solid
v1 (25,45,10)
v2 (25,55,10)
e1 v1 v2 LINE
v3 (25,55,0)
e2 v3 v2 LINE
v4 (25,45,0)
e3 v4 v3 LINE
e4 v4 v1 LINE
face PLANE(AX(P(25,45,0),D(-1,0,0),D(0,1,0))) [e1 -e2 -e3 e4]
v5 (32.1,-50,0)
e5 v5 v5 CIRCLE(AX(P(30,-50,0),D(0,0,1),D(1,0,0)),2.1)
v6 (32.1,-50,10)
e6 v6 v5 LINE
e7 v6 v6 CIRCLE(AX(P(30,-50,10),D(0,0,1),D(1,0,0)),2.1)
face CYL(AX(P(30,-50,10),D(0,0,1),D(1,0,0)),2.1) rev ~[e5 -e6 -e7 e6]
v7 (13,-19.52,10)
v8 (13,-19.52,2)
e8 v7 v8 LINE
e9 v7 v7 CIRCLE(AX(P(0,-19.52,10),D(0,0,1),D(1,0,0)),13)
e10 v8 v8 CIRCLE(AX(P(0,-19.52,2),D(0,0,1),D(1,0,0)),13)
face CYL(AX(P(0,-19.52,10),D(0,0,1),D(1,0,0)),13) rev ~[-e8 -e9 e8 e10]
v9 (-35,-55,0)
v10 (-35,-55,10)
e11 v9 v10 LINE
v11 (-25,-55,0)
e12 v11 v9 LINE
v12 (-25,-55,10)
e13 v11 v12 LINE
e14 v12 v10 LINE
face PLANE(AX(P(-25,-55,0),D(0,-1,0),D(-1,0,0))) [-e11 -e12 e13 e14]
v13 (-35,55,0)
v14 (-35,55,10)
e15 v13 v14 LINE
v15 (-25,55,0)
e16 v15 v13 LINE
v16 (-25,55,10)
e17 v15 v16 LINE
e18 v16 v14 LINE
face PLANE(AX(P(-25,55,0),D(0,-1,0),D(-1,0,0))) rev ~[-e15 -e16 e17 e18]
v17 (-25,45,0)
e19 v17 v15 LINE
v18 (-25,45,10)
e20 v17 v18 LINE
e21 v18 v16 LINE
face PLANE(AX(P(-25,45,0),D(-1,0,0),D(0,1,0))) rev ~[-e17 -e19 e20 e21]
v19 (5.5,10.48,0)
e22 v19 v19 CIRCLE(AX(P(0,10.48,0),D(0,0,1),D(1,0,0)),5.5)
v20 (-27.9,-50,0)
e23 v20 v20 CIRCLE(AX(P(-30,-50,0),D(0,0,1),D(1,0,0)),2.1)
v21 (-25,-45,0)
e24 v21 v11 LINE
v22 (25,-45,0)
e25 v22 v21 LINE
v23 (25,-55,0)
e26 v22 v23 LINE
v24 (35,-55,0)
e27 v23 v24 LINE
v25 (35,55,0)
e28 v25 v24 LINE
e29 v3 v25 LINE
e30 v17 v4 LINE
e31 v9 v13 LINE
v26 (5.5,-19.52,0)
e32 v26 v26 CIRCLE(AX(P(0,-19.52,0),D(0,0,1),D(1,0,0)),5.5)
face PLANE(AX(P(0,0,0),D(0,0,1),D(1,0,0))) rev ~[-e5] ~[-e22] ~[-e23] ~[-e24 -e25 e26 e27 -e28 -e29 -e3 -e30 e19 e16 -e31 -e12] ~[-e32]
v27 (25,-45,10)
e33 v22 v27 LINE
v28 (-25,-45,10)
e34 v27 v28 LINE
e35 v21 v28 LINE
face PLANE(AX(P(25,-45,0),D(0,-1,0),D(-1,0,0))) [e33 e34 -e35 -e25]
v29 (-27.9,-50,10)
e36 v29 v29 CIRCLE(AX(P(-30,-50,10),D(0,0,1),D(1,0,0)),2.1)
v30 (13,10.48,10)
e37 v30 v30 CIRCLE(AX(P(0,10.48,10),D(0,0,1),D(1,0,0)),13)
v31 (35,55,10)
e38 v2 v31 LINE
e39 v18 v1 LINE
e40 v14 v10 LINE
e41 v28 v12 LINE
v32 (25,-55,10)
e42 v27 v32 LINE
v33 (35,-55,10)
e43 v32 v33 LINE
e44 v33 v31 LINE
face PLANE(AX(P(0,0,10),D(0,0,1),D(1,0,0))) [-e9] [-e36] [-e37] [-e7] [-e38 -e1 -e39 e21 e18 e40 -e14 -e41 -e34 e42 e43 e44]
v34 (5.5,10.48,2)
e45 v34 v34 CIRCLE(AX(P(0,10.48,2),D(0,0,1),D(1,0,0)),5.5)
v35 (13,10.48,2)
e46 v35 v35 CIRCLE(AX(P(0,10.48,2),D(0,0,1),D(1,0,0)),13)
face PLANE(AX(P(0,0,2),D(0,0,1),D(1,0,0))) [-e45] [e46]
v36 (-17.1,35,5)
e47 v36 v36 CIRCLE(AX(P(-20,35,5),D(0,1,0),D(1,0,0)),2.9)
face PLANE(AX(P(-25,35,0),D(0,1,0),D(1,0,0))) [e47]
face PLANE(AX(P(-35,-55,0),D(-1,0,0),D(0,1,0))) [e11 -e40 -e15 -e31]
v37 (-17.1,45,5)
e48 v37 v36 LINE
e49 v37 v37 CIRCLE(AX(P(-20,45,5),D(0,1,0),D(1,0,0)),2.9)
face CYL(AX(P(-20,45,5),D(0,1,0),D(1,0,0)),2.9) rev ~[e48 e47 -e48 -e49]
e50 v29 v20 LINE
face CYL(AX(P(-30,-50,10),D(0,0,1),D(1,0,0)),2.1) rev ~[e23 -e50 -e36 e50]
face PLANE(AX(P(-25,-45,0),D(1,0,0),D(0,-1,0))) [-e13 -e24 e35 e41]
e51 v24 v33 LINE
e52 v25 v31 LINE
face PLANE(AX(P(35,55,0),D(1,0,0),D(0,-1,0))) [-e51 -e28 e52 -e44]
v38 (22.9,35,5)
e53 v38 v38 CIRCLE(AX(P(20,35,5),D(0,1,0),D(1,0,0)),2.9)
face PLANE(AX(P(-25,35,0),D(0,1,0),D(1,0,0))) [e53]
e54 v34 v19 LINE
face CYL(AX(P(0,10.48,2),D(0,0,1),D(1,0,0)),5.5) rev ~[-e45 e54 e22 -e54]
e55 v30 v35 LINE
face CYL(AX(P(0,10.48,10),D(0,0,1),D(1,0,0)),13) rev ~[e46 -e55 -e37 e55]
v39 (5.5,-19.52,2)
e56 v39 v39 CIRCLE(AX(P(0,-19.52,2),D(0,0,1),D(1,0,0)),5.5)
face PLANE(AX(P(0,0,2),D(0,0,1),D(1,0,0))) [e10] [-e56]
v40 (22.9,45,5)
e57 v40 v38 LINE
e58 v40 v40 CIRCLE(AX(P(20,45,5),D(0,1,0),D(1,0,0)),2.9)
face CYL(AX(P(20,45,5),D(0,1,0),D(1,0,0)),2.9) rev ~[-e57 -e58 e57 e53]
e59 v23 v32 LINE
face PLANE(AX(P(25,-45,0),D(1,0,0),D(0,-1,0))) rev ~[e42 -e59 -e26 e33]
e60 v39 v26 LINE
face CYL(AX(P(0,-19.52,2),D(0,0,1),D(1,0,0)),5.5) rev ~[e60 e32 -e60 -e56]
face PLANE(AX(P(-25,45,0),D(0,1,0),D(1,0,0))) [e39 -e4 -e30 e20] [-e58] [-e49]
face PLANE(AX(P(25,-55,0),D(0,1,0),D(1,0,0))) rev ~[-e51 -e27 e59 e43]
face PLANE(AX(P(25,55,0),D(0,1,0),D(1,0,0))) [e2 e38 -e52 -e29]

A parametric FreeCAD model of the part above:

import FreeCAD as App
import Part
import Sketcher

V = App.Vector


def add_polygon(sketch, points):
    """Adds a closed chain of lines whose ends are joined by coincident constraints."""
    first, n = sketch.GeometryCount, len(points)
    for a, b in zip(points, points[1:] + points[:1]):
        sketch.addGeometry(Part.LineSegment(App.Vector(*a, 0), App.Vector(*b, 0)), False)
    for i in range(n):
        sketch.addConstraint(Sketcher.Constraint("Coincident", first + i, 2, first + (i + 1) % n, 1))

doc = App.newDocument("Part")
body = doc.addObject("PartDesign::Body", "Body")

sketch1 = body.newObject("Sketcher::SketchObject", "Sketch")
sketch1.AttachmentSupport = (doc.getObject("XY_Plane"), [""])
sketch1.MapMode = "FlatFace"
add_polygon(sketch1, [(25, 45), (-25, 45), (-25, 55), (-35, 55), (-35, -55), (-25, -55), (-25, -45), (25, -45), (25, -55), (35, -55), (35, 55), (25, 55)])
sketch1.addConstraint([
    Sketcher.Constraint("Horizontal", 0),
    Sketcher.Constraint("Vertical", 1),
    Sketcher.Constraint("Horizontal", 2),
    Sketcher.Constraint("Vertical", 3),
    Sketcher.Constraint("Horizontal", 4),
    Sketcher.Constraint("Vertical", 5),
    Sketcher.Constraint("Horizontal", 6),
    Sketcher.Constraint("Vertical", 7),
    Sketcher.Constraint("Horizontal", 8),
    Sketcher.Constraint("Vertical", 9),
    Sketcher.Constraint("Horizontal", 10),
    Sketcher.Constraint("Vertical", 11),
    Sketcher.Constraint("Symmetric", 0, 2, 6, 2, -1, 1),
    Sketcher.Constraint("Symmetric", 2, 2, 8, 2, -1, 1),
    Sketcher.Constraint("Symmetric", 4, 2, 10, 2, -1, 1),
    Sketcher.Constraint("Symmetric", 4, 2, 7, 2, -2),
    Sketcher.Constraint("Equal", 10, 1),
    Sketcher.Constraint("DistanceX", 2, 2, 2, 1, 10.0),
    Sketcher.Constraint("DistanceY", 5, 2, 0, 2, 90.0),
    Sketcher.Constraint("DistanceX", 3, 2, 8, 2, 70.0),
])
pad1 = body.newObject("PartDesign::Pad", "Pad")
pad1.Profile = sketch1
pad1.Length = 10

sketch2 = body.newObject("Sketcher::SketchObject", "Sketch001")
sketch2.AttachmentSupport = (doc.getObject("XY_Plane"), [""])
sketch2.MapMode = "FlatFace"
sketch2.AttachmentOffset = App.Placement(V(0, 0, 10), App.Rotation())
sketch2.addGeometry([
    Part.Circle(V(0, 10, 0), V(0, 0, 1), 13),
    Part.Circle(V(0, -20, 0), V(0, 0, 1), 13),
], False)
sketch2.addConstraint([
    Sketcher.Constraint("Equal", 0, 1),
    Sketcher.Constraint("PointOnObject", 0, 3, -2),
    Sketcher.Constraint("PointOnObject", 1, 3, -2),
    Sketcher.Constraint("Diameter", 0, 26.0),
    Sketcher.Constraint("DistanceY", 1, 3, 0, 3, 30.0),
    Sketcher.Constraint("DistanceY", -1, 1, 0, 3, 10.48),
])
pocket1 = body.newObject("PartDesign::Pocket", "Pocket")
pocket1.Profile = sketch2
pocket1.Length = 8

sketch3 = body.newObject("Sketcher::SketchObject", "Sketch002")
sketch3.AttachmentSupport = (doc.getObject("XY_Plane"), [""])
sketch3.MapMode = "FlatFace"
sketch3.AttachmentOffset = App.Placement(V(0, 0, 2), App.Rotation())
sketch3.addGeometry(Part.Circle(V(0, 10, 0), V(0, 0, 1), 6), False)
sketch3.addConstraint([
    Sketcher.Constraint("PointOnObject", 0, 3, -2),
    Sketcher.Constraint("Diameter", 0, 11.0),
    Sketcher.Constraint("DistanceY", -1, 1, 0, 3, 10.48),
])
pocket2 = body.newObject("PartDesign::Pocket", "Pocket001")
pocket2.Profile = sketch3
pocket2.Type = "ThroughAll"

sketch4 = body.newObject("Sketcher::SketchObject", "Sketch003")
sketch4.AttachmentSupport = (doc.getObject("XY_Plane"), [""])
sketch4.MapMode = "FlatFace"
sketch4.AttachmentOffset = App.Placement(V(0, 0, 2), App.Rotation())
sketch4.addGeometry(Part.Circle(V(0, -20, 0), V(0, 0, 1), 6), False)
sketch4.addConstraint([
    Sketcher.Constraint("PointOnObject", 0, 3, -2),
    Sketcher.Constraint("Diameter", 0, 11.0),
    Sketcher.Constraint("DistanceY", 0, 3, -1, 1, 19.52),
])
pocket3 = body.newObject("PartDesign::Pocket", "Pocket002")
pocket3.Profile = sketch4
pocket3.Length = 10

sketch5 = body.newObject("Sketcher::SketchObject", "Sketch004")
sketch5.AttachmentSupport = (doc.getObject("XZ_Plane"), [""])
sketch5.MapMode = "FlatFace"
sketch5.AttachmentOffset = App.Placement(V(0, 0, -45), App.Rotation())
sketch5.addGeometry([
    Part.Circle(V(-20, 5, 0), V(0, 0, 1), 2.9),
    Part.Circle(V(20, 5, 0), V(0, 0, 1), 2.9),
], False)
sketch5.addConstraint([
    Sketcher.Constraint("Equal", 0, 1),
    Sketcher.Constraint("Symmetric", 0, 3, 1, 3, -2),
    Sketcher.Constraint("Diameter", 0, 5.8),
    Sketcher.Constraint("DistanceY", -1, 1, 0, 3, 5.0),
    Sketcher.Constraint("DistanceX", 0, 3, -1, 1, 20.0),
])
pocket4 = body.newObject("PartDesign::Pocket", "Pocket003")
pocket4.Profile = sketch5
pocket4.Length = 10
pocket4.Reversed = True

sketch6 = body.newObject("Sketcher::SketchObject", "Sketch005")
sketch6.AttachmentSupport = (doc.getObject("XY_Plane"), [""])
sketch6.MapMode = "FlatFace"
sketch6.AttachmentOffset = App.Placement(V(0, 0, 10), App.Rotation())
sketch6.addGeometry([
    Part.Circle(V(-30, -50, 0), V(0, 0, 1), 2.1),
    Part.Circle(V(30, -50, 0), V(0, 0, 1), 2.1),
], False)
sketch6.addConstraint([
    Sketcher.Constraint("Equal", 0, 1),
    Sketcher.Constraint("Symmetric", 0, 3, 1, 3, -2),
    Sketcher.Constraint("Diameter", 0, 4.2),
    Sketcher.Constraint("DistanceX", 0, 3, -1, 1, 30.0),
    Sketcher.Constraint("DistanceY", 0, 3, -1, 1, 50.0),
])
pocket5 = body.newObject("PartDesign::Pocket", "Pocket004")
pocket5.Profile = sketch6
pocket5.Type = "ThroughAll"

doc.recompute()
